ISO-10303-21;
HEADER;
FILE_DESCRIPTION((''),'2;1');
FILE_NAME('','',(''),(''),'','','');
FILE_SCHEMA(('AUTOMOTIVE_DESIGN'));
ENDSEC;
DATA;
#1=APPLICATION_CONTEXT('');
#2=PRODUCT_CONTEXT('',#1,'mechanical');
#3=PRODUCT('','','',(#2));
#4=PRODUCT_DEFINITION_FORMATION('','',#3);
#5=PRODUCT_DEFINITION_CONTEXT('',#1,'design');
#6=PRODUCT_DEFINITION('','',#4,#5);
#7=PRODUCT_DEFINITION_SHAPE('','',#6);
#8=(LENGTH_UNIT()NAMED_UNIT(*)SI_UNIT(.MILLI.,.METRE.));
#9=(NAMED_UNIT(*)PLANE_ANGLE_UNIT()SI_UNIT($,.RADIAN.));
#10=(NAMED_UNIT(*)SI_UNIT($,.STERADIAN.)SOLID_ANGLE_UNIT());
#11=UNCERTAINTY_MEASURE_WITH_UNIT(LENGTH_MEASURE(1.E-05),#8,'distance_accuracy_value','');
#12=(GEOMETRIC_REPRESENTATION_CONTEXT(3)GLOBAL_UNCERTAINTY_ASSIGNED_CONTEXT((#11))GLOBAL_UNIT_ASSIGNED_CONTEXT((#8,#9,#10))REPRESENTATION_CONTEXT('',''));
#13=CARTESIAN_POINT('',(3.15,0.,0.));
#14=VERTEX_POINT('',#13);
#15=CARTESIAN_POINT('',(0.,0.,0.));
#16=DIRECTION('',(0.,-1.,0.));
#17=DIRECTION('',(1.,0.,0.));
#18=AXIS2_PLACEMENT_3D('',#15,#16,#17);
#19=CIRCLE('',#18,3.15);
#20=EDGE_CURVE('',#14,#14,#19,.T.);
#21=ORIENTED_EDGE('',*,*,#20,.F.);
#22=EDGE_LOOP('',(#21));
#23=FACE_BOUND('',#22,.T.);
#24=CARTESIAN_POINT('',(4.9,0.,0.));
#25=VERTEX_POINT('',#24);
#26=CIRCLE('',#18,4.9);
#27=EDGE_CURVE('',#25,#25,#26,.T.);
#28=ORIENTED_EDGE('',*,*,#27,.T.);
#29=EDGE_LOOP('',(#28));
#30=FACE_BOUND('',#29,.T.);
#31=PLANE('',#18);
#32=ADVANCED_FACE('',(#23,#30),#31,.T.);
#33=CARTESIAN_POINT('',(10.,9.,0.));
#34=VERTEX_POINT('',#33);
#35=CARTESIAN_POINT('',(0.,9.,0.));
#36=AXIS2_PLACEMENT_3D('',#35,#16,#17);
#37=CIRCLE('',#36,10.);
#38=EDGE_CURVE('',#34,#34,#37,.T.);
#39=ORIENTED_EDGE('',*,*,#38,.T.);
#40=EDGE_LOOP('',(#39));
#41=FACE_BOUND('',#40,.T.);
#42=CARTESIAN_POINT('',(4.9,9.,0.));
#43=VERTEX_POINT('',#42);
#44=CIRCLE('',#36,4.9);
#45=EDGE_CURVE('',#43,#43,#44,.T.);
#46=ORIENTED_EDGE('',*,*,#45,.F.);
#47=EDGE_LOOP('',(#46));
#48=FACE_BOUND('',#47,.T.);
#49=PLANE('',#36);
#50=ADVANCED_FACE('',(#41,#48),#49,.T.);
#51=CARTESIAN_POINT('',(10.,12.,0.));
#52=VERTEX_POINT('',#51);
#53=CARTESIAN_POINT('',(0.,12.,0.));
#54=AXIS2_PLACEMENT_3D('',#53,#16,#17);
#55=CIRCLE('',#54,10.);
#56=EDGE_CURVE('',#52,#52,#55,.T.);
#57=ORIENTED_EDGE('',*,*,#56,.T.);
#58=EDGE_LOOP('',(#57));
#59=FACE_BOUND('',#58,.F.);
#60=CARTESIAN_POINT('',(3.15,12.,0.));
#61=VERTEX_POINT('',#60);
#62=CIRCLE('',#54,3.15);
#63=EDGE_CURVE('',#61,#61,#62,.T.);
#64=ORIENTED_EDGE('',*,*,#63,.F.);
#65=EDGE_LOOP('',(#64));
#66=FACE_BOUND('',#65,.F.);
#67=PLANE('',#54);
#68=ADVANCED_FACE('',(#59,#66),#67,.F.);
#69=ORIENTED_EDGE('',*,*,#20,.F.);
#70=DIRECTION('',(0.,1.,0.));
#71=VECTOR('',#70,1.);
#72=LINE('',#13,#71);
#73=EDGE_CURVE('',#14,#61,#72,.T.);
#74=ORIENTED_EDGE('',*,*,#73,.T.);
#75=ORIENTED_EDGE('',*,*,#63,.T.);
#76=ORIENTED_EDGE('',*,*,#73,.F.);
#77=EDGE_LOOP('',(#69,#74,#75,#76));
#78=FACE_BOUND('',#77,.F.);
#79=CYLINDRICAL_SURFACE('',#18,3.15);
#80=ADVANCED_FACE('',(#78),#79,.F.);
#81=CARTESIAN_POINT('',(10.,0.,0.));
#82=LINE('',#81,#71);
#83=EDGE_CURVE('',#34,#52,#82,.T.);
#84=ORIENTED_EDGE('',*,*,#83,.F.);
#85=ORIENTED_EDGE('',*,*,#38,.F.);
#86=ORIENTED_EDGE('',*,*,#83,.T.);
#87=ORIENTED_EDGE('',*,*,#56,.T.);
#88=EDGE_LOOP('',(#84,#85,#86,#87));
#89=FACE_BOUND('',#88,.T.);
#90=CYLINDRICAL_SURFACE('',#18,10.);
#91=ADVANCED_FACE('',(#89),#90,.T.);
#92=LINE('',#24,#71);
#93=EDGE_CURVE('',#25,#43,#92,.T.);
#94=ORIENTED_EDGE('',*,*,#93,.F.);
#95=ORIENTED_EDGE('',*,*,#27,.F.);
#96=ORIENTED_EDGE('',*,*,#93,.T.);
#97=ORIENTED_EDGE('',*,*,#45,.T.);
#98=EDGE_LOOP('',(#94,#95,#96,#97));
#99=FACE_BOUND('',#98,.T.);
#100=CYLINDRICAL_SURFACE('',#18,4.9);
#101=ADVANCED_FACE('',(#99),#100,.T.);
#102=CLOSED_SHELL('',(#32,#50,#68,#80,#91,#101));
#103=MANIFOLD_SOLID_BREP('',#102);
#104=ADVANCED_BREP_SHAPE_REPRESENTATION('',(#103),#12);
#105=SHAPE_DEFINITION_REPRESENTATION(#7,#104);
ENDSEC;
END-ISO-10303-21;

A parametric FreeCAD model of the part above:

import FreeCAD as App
import Part
import Sketcher

V = App.Vector

doc = App.newDocument("Part")
body = doc.addObject("PartDesign::Body", "Body")

sketch1 = body.newObject("Sketcher::SketchObject", "Sketch")
sketch1.AttachmentSupport = (doc.getObject("XZ_Plane"), [""])
sketch1.MapMode = "FlatFace"
sketch1.addGeometry([
    Part.Circle(V(0, 0, 0), V(0, 0, 1), 10),
    Part.Circle(V(0, 0, 0), V(0, 0, 1), 3.1),
], False)
sketch1.addConstraint([
    Sketcher.Constraint("Coincident", 0, 3, -1, 1),
    Sketcher.Constraint("Coincident", 1, 3, -1, 1),
    Sketcher.Constraint("Diameter", 0, 20.0),
    Sketcher.Constraint("Diameter", 1, 6.3),
])
pad1 = body.newObject("PartDesign::Pad", "Pad")
pad1.Profile = sketch1
pad1.Length = 12
pad1.Reversed = True

sketch2 = body.newObject("Sketcher::SketchObject", "Sketch001")
sketch2.AttachmentSupport = (doc.getObject("XZ_Plane"), [""])
sketch2.MapMode = "FlatFace"
sketch2.addGeometry([
    Part.Circle(V(0, 0, 0), V(0, 0, 1), 10),
    Part.Circle(V(0, 0, 0), V(0, 0, 1), 4.9),
], False)
sketch2.addConstraint([
    Sketcher.Constraint("Coincident", 0, 3, -1, 1),
    Sketcher.Constraint("Coincident", 1, 3, -1, 1),
    Sketcher.Constraint("Diameter", 0, 20.0),
    Sketcher.Constraint("Diameter", 1, 9.8),
])
pocket1 = body.newObject("PartDesign::Pocket", "Pocket")
pocket1.Profile = sketch2
pocket1.Length = 9

doc.recompute()
